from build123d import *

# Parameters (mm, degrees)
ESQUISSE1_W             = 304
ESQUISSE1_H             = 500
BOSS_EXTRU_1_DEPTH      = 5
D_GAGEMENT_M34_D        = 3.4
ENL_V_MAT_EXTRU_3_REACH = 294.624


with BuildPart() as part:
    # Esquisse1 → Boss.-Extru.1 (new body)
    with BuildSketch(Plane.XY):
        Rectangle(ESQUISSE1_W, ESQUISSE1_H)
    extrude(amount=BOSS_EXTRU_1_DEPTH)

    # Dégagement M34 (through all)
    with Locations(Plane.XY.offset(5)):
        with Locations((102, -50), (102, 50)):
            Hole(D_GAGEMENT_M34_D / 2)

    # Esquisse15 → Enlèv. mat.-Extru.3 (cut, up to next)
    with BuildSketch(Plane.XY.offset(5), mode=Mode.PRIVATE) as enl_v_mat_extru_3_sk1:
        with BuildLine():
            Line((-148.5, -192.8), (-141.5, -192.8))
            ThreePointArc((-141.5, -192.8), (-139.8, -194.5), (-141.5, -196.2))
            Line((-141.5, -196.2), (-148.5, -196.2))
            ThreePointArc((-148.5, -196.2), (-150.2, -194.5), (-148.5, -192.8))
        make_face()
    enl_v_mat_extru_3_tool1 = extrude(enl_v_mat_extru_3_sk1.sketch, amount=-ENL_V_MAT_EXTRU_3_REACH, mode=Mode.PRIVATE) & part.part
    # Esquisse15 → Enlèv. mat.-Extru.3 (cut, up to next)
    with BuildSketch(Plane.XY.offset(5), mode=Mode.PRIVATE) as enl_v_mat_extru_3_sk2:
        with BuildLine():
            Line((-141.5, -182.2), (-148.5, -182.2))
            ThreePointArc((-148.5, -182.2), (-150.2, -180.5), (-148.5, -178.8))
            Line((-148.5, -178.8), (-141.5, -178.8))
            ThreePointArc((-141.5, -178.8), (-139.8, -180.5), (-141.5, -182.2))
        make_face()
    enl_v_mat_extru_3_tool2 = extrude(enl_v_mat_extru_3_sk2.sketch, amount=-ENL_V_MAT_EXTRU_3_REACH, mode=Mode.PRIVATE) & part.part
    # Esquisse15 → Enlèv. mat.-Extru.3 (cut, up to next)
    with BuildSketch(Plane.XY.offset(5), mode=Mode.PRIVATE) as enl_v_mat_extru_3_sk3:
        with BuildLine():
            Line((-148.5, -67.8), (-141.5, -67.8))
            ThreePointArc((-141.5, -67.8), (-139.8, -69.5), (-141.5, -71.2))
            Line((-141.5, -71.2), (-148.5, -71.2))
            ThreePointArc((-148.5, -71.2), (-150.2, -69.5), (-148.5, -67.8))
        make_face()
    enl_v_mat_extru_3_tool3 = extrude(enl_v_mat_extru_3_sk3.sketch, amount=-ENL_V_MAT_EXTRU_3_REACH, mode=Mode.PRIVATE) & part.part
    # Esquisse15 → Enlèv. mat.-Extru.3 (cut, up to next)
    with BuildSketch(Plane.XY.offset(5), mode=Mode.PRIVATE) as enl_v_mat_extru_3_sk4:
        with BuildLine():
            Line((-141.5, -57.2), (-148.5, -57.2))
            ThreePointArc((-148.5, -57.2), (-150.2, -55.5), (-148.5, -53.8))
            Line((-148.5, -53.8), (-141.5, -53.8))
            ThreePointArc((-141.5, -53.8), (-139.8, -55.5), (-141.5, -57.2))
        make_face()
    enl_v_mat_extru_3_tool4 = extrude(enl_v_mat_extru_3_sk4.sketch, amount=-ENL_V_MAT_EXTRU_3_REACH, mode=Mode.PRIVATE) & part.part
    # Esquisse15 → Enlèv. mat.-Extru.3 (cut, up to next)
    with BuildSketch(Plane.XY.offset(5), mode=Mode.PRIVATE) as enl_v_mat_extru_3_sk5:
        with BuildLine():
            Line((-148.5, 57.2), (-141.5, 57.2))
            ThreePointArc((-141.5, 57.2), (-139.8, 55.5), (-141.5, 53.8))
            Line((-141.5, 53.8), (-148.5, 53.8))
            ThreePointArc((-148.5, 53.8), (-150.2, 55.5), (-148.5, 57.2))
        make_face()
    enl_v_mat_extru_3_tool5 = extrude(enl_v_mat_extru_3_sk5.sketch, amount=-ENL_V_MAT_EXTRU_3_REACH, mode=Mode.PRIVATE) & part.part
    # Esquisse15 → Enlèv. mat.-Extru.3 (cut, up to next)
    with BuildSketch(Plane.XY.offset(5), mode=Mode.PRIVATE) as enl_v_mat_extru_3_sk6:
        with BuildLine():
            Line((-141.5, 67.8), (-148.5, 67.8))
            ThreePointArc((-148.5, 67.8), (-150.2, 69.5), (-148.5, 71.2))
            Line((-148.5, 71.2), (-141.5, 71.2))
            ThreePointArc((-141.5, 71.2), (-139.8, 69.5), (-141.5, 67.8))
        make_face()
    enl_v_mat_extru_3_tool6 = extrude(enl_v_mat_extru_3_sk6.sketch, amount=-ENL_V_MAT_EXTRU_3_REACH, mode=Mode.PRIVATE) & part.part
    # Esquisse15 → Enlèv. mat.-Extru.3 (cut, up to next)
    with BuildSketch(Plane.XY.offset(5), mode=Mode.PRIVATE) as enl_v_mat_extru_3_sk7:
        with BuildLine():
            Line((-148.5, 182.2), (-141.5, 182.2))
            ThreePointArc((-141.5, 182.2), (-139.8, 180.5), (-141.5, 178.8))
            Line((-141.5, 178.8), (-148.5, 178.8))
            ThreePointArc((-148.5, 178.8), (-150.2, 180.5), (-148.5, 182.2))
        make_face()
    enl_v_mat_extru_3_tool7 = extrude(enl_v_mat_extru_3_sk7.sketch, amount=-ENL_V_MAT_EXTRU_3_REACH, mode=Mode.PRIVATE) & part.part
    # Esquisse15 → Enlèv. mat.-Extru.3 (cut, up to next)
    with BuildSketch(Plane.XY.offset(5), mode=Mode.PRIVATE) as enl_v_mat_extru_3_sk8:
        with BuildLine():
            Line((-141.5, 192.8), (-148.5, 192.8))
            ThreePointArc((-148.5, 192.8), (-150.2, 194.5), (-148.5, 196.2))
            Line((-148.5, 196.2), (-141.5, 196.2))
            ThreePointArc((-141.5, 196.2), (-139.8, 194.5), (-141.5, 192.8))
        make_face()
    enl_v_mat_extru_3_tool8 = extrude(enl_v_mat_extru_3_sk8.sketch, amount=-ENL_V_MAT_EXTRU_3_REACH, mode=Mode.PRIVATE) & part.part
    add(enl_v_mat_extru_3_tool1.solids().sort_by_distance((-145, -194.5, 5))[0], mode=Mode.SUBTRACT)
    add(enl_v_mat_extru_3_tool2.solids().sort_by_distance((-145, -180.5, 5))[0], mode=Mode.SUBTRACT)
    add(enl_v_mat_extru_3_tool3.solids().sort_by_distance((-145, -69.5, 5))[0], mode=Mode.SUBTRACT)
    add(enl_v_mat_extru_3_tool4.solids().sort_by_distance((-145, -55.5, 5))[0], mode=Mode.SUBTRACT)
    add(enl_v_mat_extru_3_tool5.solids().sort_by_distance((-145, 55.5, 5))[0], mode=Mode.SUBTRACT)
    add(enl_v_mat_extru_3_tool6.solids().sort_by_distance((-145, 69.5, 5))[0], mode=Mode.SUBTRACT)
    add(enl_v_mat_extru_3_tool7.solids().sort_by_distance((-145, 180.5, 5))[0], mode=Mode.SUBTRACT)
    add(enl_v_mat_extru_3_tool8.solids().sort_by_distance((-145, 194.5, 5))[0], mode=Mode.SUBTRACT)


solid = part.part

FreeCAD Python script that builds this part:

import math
import FreeCAD as App
import Part
import Sketcher
from FreeCAD import Vector

doc = App.newDocument("Part")
body = doc.addObject("PartDesign::Body", "Body")

# Sketch on XY plane
sketch1 = body.newObject("Sketcher::SketchObject", "Sketch")
sketch1.AttachmentSupport = (doc.getObject("XY_Plane"), [""])
sketch1.MapMode = "FlatFace"
sketch1.addGeometry(Part.LineSegment(Vector(-152, 250, 0), Vector(-152, -250, 0)), False)
sketch1.addGeometry(Part.LineSegment(Vector(-152, -250, 0), Vector(152, -250, 0)), False)
sketch1.addGeometry(Part.LineSegment(Vector(152, -250, 0), Vector(152, 250, 0)), False)
sketch1.addGeometry(Part.LineSegment(Vector(152, 250, 0), Vector(-152, 250, 0)), False)
sketch1.addConstraint(Sketcher.Constraint("Coincident", 0, 2, 1, 1))
sketch1.addConstraint(Sketcher.Constraint("Coincident", 1, 2, 2, 1))
sketch1.addConstraint(Sketcher.Constraint("Coincident", 2, 2, 3, 1))
sketch1.addConstraint(Sketcher.Constraint("Coincident", 3, 2, 0, 1))
sketch1.addConstraint(Sketcher.Constraint("Vertical", 0))
sketch1.addConstraint(Sketcher.Constraint("Horizontal", 1))
sketch1.addConstraint(Sketcher.Constraint("Vertical", 2))
sketch1.addConstraint(Sketcher.Constraint("Horizontal", 3))
sketch1.addConstraint(Sketcher.Constraint("Symmetric", 0, 2, 2, 2, -1, 1))
sketch1.addConstraint(Sketcher.Constraint("DistanceX", 1, 1, 1, 2, 304.0))
sketch1.addConstraint(Sketcher.Constraint("DistanceY", 0, 2, 0, 1, 500.0))
pad1 = body.newObject("PartDesign::Pad", "Pad")
pad1.Profile = sketch1
pad1.Length = 5

# Sketch on XY plane
sketch2 = body.newObject("Sketcher::SketchObject", "Sketch001")
sketch2.AttachmentSupport = (doc.getObject("XY_Plane"), [""])
sketch2.MapMode = "FlatFace"
sketch2.AttachmentOffset = App.Placement(Vector(0, 0, 5), App.Rotation())
sketch2.addGeometry(Part.Circle(Vector(102, -50, 0), Vector(0, 0, 1), 1.7), False)
sketch2.addGeometry(Part.Circle(Vector(102, 50, 0), Vector(0, 0, 1), 1.7), False)
sketch2.addConstraint(Sketcher.Constraint("Equal", 0, 1))
sketch2.addConstraint(Sketcher.Constraint("Symmetric", 0, 3, 1, 3, -1))
sketch2.addConstraint(Sketcher.Constraint("Diameter", 0, 3.4))
sketch2.addConstraint(Sketcher.Constraint("DistanceX", -1, 1, 0, 3, 102.0))
sketch2.addConstraint(Sketcher.Constraint("DistanceY", 0, 3, -1, 1, 50.0))
doc.recompute()
hole = body.newObject("PartDesign::Hole", "Hole")
hole.Profile = sketch2
hole.ThreadType = "None"
hole.Diameter = 3.4
hole.DepthType = "ThroughAll"

# Sketch on XY plane
sketch3 = body.newObject("Sketcher::SketchObject", "Sketch002")
sketch3.AttachmentSupport = (doc.getObject("XY_Plane"), [""])
sketch3.MapMode = "FlatFace"
sketch3.AttachmentOffset = App.Placement(Vector(0, 0, 5), App.Rotation())
sketch3.addGeometry(Part.LineSegment(Vector(-141.5, -192.8, 0), Vector(-148.5, -192.8, 0)), False)
sketch3.addGeometry(Part.ArcOfCircle(Part.Circle(Vector(-148.5, -194.5, 0), Vector(0, 0, 1), 1.7), math.radians(90), math.radians(270)), False)
sketch3.addGeometry(Part.LineSegment(Vector(-148.5, -196.2, 0), Vector(-141.5, -196.2, 0)), False)
sketch3.addGeometry(Part.ArcOfCircle(Part.Circle(Vector(-141.5, -194.5, 0), Vector(0, 0, 1), 1.7), math.radians(-90), math.radians(90)), False)
sketch3.addConstraint(Sketcher.Constraint("Tangent", 0, 2, 1, 1))
sketch3.addConstraint(Sketcher.Constraint("Tangent", 1, 2, 2, 1))
sketch3.addConstraint(Sketcher.Constraint("Tangent", 2, 2, 3, 1))
sketch3.addConstraint(Sketcher.Constraint("Tangent", 3, 2, 0, 1))
sketch3.addConstraint(Sketcher.Constraint("Horizontal", 0))
sketch3.addConstraint(Sketcher.Constraint("Horizontal", 2))
sketch3.addConstraint(Sketcher.Constraint("Radius", 1, 1.7))
sketch3.addConstraint(Sketcher.Constraint("DistanceX", 0, 2, 0, 1, 7.0))
sketch3.addConstraint(Sketcher.Constraint("DistanceX", 1, 3, -1, 1, 148.5))
sketch3.addConstraint(Sketcher.Constraint("DistanceY", 1, 3, -1, 1, 194.5))
pocket1 = body.newObject("PartDesign::Pocket", "Pocket")
pocket1.Profile = sketch3
pocket1.Type = "UpToFirst"

# Sketch on XY plane
sketch4 = body.newObject("Sketcher::SketchObject", "Sketch003")
sketch4.AttachmentSupport = (doc.getObject("XY_Plane"), [""])
sketch4.MapMode = "FlatFace"
sketch4.AttachmentOffset = App.Placement(Vector(0, 0, 5), App.Rotation())
sketch4.addGeometry(Part.LineSegment(Vector(-148.5, -182.2, 0), Vector(-141.5, -182.2, 0)), False)
sketch4.addGeometry(Part.ArcOfCircle(Part.Circle(Vector(-141.5, -180.5, 0), Vector(0, 0, 1), 1.7), math.radians(-90), math.radians(90)), False)
sketch4.addGeometry(Part.LineSegment(Vector(-141.5, -178.8, 0), Vector(-148.5, -178.8, 0)), False)
sketch4.addGeometry(Part.ArcOfCircle(Part.Circle(Vector(-148.5, -180.5, 0), Vector(0, 0, 1), 1.7), math.radians(90), math.radians(270)), False)
sketch4.addConstraint(Sketcher.Constraint("Tangent", 0, 2, 1, 1))
sketch4.addConstraint(Sketcher.Constraint("Tangent", 1, 2, 2, 1))
sketch4.addConstraint(Sketcher.Constraint("Tangent", 2, 2, 3, 1))
sketch4.addConstraint(Sketcher.Constraint("Tangent", 3, 2, 0, 1))
sketch4.addConstraint(Sketcher.Constraint("Horizontal", 0))
sketch4.addConstraint(Sketcher.Constraint("Horizontal", 2))
sketch4.addConstraint(Sketcher.Constraint("Radius", 1, 1.7))
sketch4.addConstraint(Sketcher.Constraint("DistanceX", 0, 1, 0, 2, 7.0))
sketch4.addConstraint(Sketcher.Constraint("DistanceX", 1, 3, -1, 1, 141.5))
sketch4.addConstraint(Sketcher.Constraint("DistanceY", 1, 3, -1, 1, 180.5))
pocket2 = body.newObject("PartDesign::Pocket", "Pocket001")
pocket2.Profile = sketch4
pocket2.Type = "UpToFirst"

# Sketch on XY plane
sketch5 = body.newObject("Sketcher::SketchObject", "Sketch004")
sketch5.AttachmentSupport = (doc.getObject("XY_Plane"), [""])
sketch5.MapMode = "FlatFace"
sketch5.AttachmentOffset = App.Placement(Vector(0, 0, 5), App.Rotation())
sketch5.addGeometry(Part.LineSegment(Vector(-141.5, -67.8, 0), Vector(-148.5, -67.8, 0)), False)
sketch5.addGeometry(Part.ArcOfCircle(Part.Circle(Vector(-148.5, -69.5, 0), Vector(0, 0, 1), 1.7), math.radians(90), math.radians(270)), False)
sketch5.addGeometry(Part.LineSegment(Vector(-148.5, -71.2, 0), Vector(-141.5, -71.2, 0)), False)
sketch5.addGeometry(Part.ArcOfCircle(Part.Circle(Vector(-141.5, -69.5, 0), Vector(0, 0, 1), 1.7), math.radians(-90), math.radians(90)), False)
sketch5.addConstraint(Sketcher.Constraint("Tangent", 0, 2, 1, 1))
sketch5.addConstraint(Sketcher.Constraint("Tangent", 1, 2, 2, 1))
sketch5.addConstraint(Sketcher.Constraint("Tangent", 2, 2, 3, 1))
sketch5.addConstraint(Sketcher.Constraint("Tangent", 3, 2, 0, 1))
sketch5.addConstraint(Sketcher.Constraint("Horizontal", 0))
sketch5.addConstraint(Sketcher.Constraint("Horizontal", 2))
sketch5.addConstraint(Sketcher.Constraint("Radius", 1, 1.7))
sketch5.addConstraint(Sketcher.Constraint("DistanceX", 0, 2, 0, 1, 7.0))
sketch5.addConstraint(Sketcher.Constraint("DistanceX", 1, 3, -1, 1, 148.5))
sketch5.addConstraint(Sketcher.Constraint("DistanceY", 1, 3, -1, 1, 69.5))
pocket3 = body.newObject("PartDesign::Pocket", "Pocket002")
pocket3.Profile = sketch5
pocket3.Type = "UpToFirst"

# Sketch on XY plane
sketch6 = body.newObject("Sketcher::SketchObject", "Sketch005")
sketch6.AttachmentSupport = (doc.getObject("XY_Plane"), [""])
sketch6.MapMode = "FlatFace"
sketch6.AttachmentOffset = App.Placement(Vector(0, 0, 5), App.Rotation())
sketch6.addGeometry(Part.LineSegment(Vector(-148.5, -57.2, 0), Vector(-141.5, -57.2, 0)), False)
sketch6.addGeometry(Part.ArcOfCircle(Part.Circle(Vector(-141.5, -55.5, 0), Vector(0, 0, 1), 1.7), math.radians(-90), math.radians(90)), False)
sketch6.addGeometry(Part.LineSegment(Vector(-141.5, -53.8, 0), Vector(-148.5, -53.8, 0)), False)
sketch6.addGeometry(Part.ArcOfCircle(Part.Circle(Vector(-148.5, -55.5, 0), Vector(0, 0, 1), 1.7), math.radians(90), math.radians(270)), False)
sketch6.addConstraint(Sketcher.Constraint("Tangent", 0, 2, 1, 1))
sketch6.addConstraint(Sketcher.Constraint("Tangent", 1, 2, 2, 1))
sketch6.addConstraint(Sketcher.Constraint("Tangent", 2, 2, 3, 1))
sketch6.addConstraint(Sketcher.Constraint("Tangent", 3, 2, 0, 1))
sketch6.addConstraint(Sketcher.Constraint("Horizontal", 0))
sketch6.addConstraint(Sketcher.Constraint("Horizontal", 2))
sketch6.addConstraint(Sketcher.Constraint("Radius", 1, 1.7))
sketch6.addConstraint(Sketcher.Constraint("DistanceX", 0, 1, 0, 2, 7.0))
sketch6.addConstraint(Sketcher.Constraint("DistanceX", 1, 3, -1, 1, 141.5))
sketch6.addConstraint(Sketcher.Constraint("DistanceY", 1, 3, -1, 1, 55.5))
pocket4 = body.newObject("PartDesign::Pocket", "Pocket003")
pocket4.Profile = sketch6
pocket4.Type = "UpToFirst"

# Sketch on XY plane
sketch7 = body.newObject("Sketcher::SketchObject", "Sketch006")
sketch7.AttachmentSupport = (doc.getObject("XY_Plane"), [""])
sketch7.MapMode = "FlatFace"
sketch7.AttachmentOffset = App.Placement(Vector(0, 0, 5), App.Rotation())
sketch7.addGeometry(Part.LineSegment(Vector(-141.5, 57.2, 0), Vector(-148.5, 57.2, 0)), False)
sketch7.addGeometry(Part.ArcOfCircle(Part.Circle(Vector(-148.5, 55.5, 0), Vector(0, 0, 1), 1.7), math.radians(90), math.radians(270)), False)
sketch7.addGeometry(Part.LineSegment(Vector(-148.5, 53.8, 0), Vector(-141.5, 53.8, 0)), False)
sketch7.addGeometry(Part.ArcOfCircle(Part.Circle(Vector(-141.5, 55.5, 0), Vector(0, 0, 1), 1.7), math.radians(-90), math.radians(90)), False)
sketch7.addConstraint(Sketcher.Constraint("Tangent", 0, 2, 1, 1))
sketch7.addConstraint(Sketcher.Constraint("Tangent", 1, 2, 2, 1))
sketch7.addConstraint(Sketcher.Constraint("Tangent", 2, 2, 3, 1))
sketch7.addConstraint(Sketcher.Constraint("Tangent", 3, 2, 0, 1))
sketch7.addConstraint(Sketcher.Constraint("Horizontal", 0))
sketch7.addConstraint(Sketcher.Constraint("Horizontal", 2))
sketch7.addConstraint(Sketcher.Constraint("Radius", 1, 1.7))
sketch7.addConstraint(Sketcher.Constraint("DistanceX", 0, 2, 0, 1, 7.0))
sketch7.addConstraint(Sketcher.Constraint("DistanceX", 1, 3, -1, 1, 148.5))
sketch7.addConstraint(Sketcher.Constraint("DistanceY", -1, 1, 1, 3, 55.5))
pocket5 = body.newObject("PartDesign::Pocket", "Pocket004")
pocket5.Profile = sketch7
pocket5.Type = "UpToFirst"

# Sketch on XY plane
sketch8 = body.newObject("Sketcher::SketchObject", "Sketch007")
sketch8.AttachmentSupport = (doc.getObject("XY_Plane"), [""])
sketch8.MapMode = "FlatFace"
sketch8.AttachmentOffset = App.Placement(Vector(0, 0, 5), App.Rotation())
sketch8.addGeometry(Part.LineSegment(Vector(-148.5, 67.8, 0), Vector(-141.5, 67.8, 0)), False)
sketch8.addGeometry(Part.ArcOfCircle(Part.Circle(Vector(-141.5, 69.5, 0), Vector(0, 0, 1), 1.7), math.radians(-90), math.radians(90)), False)
sketch8.addGeometry(Part.LineSegment(Vector(-141.5, 71.2, 0), Vector(-148.5, 71.2, 0)), False)
sketch8.addGeometry(Part.ArcOfCircle(Part.Circle(Vector(-148.5, 69.5, 0), Vector(0, 0, 1), 1.7), math.radians(90), math.radians(270)), False)
sketch8.addConstraint(Sketcher.Constraint("Tangent", 0, 2, 1, 1))
sketch8.addConstraint(Sketcher.Constraint("Tangent", 1, 2, 2, 1))
sketch8.addConstraint(Sketcher.Constraint("Tangent", 2, 2, 3, 1))
sketch8.addConstraint(Sketcher.Constraint("Tangent", 3, 2, 0, 1))
sketch8.addConstraint(Sketcher.Constraint("Horizontal", 0))
sketch8.addConstraint(Sketcher.Constraint("Horizontal", 2))
sketch8.addConstraint(Sketcher.Constraint("Radius", 1, 1.7))
sketch8.addConstraint(Sketcher.Constraint("DistanceX", 0, 1, 0, 2, 7.0))
sketch8.addConstraint(Sketcher.Constraint("DistanceX", 1, 3, -1, 1, 141.5))
sketch8.addConstraint(Sketcher.Constraint("DistanceY", -1, 1, 1, 3, 69.5))
pocket6 = body.newObject("PartDesign::Pocket", "Pocket005")
pocket6.Profile = sketch8
pocket6.Type = "UpToFirst"

# Sketch on XY plane
sketch9 = body.newObject("Sketcher::SketchObject", "Sketch008")
sketch9.AttachmentSupport = (doc.getObject("XY_Plane"), [""])
sketch9.MapMode = "FlatFace"
sketch9.AttachmentOffset = App.Placement(Vector(0, 0, 5), App.Rotation())
sketch9.addGeometry(Part.LineSegment(Vector(-141.5, 182.2, 0), Vector(-148.5, 182.2, 0)), False)
sketch9.addGeometry(Part.ArcOfCircle(Part.Circle(Vector(-148.5, 180.5, 0), Vector(0, 0, 1), 1.7), math.radians(90), math.radians(270)), False)
sketch9.addGeometry(Part.LineSegment(Vector(-148.5, 178.8, 0), Vector(-141.5, 178.8, 0)), False)
sketch9.addGeometry(Part.ArcOfCircle(Part.Circle(Vector(-141.5, 180.5, 0), Vector(0, 0, 1), 1.7), math.radians(-90), math.radians(90)), False)
sketch9.addConstraint(Sketcher.Constraint("Tangent", 0, 2, 1, 1))
sketch9.addConstraint(Sketcher.Constraint("Tangent", 1, 2, 2, 1))
sketch9.addConstraint(Sketcher.Constraint("Tangent", 2, 2, 3, 1))
sketch9.addConstraint(Sketcher.Constraint("Tangent", 3, 2, 0, 1))
sketch9.addConstraint(Sketcher.Constraint("Horizontal", 0))
sketch9.addConstraint(Sketcher.Constraint("Horizontal", 2))
sketch9.addConstraint(Sketcher.Constraint("Radius", 1, 1.7))
sketch9.addConstraint(Sketcher.Constraint("DistanceX", 0, 2, 0, 1, 7.0))
sketch9.addConstraint(Sketcher.Constraint("DistanceX", 1, 3, -1, 1, 148.5))
sketch9.addConstraint(Sketcher.Constraint("DistanceY", -1, 1, 1, 3, 180.5))
pocket7 = body.newObject("PartDesign::Pocket", "Pocket006")
pocket7.Profile = sketch9
pocket7.Type = "UpToFirst"

# Sketch on XY plane
sketch10 = body.newObject("Sketcher::SketchObject", "Sketch009")
sketch10.AttachmentSupport = (doc.getObject("XY_Plane"), [""])
sketch10.MapMode = "FlatFace"
sketch10.AttachmentOffset = App.Placement(Vector(0, 0, 5), App.Rotation())
sketch10.addGeometry(Part.LineSegment(Vector(-148.5, 192.8, 0), Vector(-141.5, 192.8, 0)), False)
sketch10.addGeometry(Part.ArcOfCircle(Part.Circle(Vector(-141.5, 194.5, 0), Vector(0, 0, 1), 1.7), math.radians(-90), math.radians(90)), False)
sketch10.addGeometry(Part.LineSegment(Vector(-141.5, 196.2, 0), Vector(-148.5, 196.2, 0)), False)
sketch10.addGeometry(Part.ArcOfCircle(Part.Circle(Vector(-148.5, 194.5, 0), Vector(0, 0, 1), 1.7), math.radians(90), math.radians(270)), False)
sketch10.addConstraint(Sketcher.Constraint("Tangent", 0, 2, 1, 1))
sketch10.addConstraint(Sketcher.Constraint("Tangent", 1, 2, 2, 1))
sketch10.addConstraint(Sketcher.Constraint("Tangent", 2, 2, 3, 1))
sketch10.addConstraint(Sketcher.Constraint("Tangent", 3, 2, 0, 1))
sketch10.addConstraint(Sketcher.Constraint("Horizontal", 0))
sketch10.addConstraint(Sketcher.Constraint("Horizontal", 2))
sketch10.addConstraint(Sketcher.Constraint("Radius", 1, 1.7))
sketch10.addConstraint(Sketcher.Constraint("DistanceX", 0, 1, 0, 2, 7.0))
sketch10.addConstraint(Sketcher.Constraint("DistanceX", 1, 3, -1, 1, 141.5))
sketch10.addConstraint(Sketcher.Constraint("DistanceY", -1, 1, 1, 3, 194.5))
pocket8 = body.newObject("PartDesign::Pocket", "Pocket007")
pocket8.Profile = sketch10
pocket8.Type = "UpToFirst"

doc.recompute()
